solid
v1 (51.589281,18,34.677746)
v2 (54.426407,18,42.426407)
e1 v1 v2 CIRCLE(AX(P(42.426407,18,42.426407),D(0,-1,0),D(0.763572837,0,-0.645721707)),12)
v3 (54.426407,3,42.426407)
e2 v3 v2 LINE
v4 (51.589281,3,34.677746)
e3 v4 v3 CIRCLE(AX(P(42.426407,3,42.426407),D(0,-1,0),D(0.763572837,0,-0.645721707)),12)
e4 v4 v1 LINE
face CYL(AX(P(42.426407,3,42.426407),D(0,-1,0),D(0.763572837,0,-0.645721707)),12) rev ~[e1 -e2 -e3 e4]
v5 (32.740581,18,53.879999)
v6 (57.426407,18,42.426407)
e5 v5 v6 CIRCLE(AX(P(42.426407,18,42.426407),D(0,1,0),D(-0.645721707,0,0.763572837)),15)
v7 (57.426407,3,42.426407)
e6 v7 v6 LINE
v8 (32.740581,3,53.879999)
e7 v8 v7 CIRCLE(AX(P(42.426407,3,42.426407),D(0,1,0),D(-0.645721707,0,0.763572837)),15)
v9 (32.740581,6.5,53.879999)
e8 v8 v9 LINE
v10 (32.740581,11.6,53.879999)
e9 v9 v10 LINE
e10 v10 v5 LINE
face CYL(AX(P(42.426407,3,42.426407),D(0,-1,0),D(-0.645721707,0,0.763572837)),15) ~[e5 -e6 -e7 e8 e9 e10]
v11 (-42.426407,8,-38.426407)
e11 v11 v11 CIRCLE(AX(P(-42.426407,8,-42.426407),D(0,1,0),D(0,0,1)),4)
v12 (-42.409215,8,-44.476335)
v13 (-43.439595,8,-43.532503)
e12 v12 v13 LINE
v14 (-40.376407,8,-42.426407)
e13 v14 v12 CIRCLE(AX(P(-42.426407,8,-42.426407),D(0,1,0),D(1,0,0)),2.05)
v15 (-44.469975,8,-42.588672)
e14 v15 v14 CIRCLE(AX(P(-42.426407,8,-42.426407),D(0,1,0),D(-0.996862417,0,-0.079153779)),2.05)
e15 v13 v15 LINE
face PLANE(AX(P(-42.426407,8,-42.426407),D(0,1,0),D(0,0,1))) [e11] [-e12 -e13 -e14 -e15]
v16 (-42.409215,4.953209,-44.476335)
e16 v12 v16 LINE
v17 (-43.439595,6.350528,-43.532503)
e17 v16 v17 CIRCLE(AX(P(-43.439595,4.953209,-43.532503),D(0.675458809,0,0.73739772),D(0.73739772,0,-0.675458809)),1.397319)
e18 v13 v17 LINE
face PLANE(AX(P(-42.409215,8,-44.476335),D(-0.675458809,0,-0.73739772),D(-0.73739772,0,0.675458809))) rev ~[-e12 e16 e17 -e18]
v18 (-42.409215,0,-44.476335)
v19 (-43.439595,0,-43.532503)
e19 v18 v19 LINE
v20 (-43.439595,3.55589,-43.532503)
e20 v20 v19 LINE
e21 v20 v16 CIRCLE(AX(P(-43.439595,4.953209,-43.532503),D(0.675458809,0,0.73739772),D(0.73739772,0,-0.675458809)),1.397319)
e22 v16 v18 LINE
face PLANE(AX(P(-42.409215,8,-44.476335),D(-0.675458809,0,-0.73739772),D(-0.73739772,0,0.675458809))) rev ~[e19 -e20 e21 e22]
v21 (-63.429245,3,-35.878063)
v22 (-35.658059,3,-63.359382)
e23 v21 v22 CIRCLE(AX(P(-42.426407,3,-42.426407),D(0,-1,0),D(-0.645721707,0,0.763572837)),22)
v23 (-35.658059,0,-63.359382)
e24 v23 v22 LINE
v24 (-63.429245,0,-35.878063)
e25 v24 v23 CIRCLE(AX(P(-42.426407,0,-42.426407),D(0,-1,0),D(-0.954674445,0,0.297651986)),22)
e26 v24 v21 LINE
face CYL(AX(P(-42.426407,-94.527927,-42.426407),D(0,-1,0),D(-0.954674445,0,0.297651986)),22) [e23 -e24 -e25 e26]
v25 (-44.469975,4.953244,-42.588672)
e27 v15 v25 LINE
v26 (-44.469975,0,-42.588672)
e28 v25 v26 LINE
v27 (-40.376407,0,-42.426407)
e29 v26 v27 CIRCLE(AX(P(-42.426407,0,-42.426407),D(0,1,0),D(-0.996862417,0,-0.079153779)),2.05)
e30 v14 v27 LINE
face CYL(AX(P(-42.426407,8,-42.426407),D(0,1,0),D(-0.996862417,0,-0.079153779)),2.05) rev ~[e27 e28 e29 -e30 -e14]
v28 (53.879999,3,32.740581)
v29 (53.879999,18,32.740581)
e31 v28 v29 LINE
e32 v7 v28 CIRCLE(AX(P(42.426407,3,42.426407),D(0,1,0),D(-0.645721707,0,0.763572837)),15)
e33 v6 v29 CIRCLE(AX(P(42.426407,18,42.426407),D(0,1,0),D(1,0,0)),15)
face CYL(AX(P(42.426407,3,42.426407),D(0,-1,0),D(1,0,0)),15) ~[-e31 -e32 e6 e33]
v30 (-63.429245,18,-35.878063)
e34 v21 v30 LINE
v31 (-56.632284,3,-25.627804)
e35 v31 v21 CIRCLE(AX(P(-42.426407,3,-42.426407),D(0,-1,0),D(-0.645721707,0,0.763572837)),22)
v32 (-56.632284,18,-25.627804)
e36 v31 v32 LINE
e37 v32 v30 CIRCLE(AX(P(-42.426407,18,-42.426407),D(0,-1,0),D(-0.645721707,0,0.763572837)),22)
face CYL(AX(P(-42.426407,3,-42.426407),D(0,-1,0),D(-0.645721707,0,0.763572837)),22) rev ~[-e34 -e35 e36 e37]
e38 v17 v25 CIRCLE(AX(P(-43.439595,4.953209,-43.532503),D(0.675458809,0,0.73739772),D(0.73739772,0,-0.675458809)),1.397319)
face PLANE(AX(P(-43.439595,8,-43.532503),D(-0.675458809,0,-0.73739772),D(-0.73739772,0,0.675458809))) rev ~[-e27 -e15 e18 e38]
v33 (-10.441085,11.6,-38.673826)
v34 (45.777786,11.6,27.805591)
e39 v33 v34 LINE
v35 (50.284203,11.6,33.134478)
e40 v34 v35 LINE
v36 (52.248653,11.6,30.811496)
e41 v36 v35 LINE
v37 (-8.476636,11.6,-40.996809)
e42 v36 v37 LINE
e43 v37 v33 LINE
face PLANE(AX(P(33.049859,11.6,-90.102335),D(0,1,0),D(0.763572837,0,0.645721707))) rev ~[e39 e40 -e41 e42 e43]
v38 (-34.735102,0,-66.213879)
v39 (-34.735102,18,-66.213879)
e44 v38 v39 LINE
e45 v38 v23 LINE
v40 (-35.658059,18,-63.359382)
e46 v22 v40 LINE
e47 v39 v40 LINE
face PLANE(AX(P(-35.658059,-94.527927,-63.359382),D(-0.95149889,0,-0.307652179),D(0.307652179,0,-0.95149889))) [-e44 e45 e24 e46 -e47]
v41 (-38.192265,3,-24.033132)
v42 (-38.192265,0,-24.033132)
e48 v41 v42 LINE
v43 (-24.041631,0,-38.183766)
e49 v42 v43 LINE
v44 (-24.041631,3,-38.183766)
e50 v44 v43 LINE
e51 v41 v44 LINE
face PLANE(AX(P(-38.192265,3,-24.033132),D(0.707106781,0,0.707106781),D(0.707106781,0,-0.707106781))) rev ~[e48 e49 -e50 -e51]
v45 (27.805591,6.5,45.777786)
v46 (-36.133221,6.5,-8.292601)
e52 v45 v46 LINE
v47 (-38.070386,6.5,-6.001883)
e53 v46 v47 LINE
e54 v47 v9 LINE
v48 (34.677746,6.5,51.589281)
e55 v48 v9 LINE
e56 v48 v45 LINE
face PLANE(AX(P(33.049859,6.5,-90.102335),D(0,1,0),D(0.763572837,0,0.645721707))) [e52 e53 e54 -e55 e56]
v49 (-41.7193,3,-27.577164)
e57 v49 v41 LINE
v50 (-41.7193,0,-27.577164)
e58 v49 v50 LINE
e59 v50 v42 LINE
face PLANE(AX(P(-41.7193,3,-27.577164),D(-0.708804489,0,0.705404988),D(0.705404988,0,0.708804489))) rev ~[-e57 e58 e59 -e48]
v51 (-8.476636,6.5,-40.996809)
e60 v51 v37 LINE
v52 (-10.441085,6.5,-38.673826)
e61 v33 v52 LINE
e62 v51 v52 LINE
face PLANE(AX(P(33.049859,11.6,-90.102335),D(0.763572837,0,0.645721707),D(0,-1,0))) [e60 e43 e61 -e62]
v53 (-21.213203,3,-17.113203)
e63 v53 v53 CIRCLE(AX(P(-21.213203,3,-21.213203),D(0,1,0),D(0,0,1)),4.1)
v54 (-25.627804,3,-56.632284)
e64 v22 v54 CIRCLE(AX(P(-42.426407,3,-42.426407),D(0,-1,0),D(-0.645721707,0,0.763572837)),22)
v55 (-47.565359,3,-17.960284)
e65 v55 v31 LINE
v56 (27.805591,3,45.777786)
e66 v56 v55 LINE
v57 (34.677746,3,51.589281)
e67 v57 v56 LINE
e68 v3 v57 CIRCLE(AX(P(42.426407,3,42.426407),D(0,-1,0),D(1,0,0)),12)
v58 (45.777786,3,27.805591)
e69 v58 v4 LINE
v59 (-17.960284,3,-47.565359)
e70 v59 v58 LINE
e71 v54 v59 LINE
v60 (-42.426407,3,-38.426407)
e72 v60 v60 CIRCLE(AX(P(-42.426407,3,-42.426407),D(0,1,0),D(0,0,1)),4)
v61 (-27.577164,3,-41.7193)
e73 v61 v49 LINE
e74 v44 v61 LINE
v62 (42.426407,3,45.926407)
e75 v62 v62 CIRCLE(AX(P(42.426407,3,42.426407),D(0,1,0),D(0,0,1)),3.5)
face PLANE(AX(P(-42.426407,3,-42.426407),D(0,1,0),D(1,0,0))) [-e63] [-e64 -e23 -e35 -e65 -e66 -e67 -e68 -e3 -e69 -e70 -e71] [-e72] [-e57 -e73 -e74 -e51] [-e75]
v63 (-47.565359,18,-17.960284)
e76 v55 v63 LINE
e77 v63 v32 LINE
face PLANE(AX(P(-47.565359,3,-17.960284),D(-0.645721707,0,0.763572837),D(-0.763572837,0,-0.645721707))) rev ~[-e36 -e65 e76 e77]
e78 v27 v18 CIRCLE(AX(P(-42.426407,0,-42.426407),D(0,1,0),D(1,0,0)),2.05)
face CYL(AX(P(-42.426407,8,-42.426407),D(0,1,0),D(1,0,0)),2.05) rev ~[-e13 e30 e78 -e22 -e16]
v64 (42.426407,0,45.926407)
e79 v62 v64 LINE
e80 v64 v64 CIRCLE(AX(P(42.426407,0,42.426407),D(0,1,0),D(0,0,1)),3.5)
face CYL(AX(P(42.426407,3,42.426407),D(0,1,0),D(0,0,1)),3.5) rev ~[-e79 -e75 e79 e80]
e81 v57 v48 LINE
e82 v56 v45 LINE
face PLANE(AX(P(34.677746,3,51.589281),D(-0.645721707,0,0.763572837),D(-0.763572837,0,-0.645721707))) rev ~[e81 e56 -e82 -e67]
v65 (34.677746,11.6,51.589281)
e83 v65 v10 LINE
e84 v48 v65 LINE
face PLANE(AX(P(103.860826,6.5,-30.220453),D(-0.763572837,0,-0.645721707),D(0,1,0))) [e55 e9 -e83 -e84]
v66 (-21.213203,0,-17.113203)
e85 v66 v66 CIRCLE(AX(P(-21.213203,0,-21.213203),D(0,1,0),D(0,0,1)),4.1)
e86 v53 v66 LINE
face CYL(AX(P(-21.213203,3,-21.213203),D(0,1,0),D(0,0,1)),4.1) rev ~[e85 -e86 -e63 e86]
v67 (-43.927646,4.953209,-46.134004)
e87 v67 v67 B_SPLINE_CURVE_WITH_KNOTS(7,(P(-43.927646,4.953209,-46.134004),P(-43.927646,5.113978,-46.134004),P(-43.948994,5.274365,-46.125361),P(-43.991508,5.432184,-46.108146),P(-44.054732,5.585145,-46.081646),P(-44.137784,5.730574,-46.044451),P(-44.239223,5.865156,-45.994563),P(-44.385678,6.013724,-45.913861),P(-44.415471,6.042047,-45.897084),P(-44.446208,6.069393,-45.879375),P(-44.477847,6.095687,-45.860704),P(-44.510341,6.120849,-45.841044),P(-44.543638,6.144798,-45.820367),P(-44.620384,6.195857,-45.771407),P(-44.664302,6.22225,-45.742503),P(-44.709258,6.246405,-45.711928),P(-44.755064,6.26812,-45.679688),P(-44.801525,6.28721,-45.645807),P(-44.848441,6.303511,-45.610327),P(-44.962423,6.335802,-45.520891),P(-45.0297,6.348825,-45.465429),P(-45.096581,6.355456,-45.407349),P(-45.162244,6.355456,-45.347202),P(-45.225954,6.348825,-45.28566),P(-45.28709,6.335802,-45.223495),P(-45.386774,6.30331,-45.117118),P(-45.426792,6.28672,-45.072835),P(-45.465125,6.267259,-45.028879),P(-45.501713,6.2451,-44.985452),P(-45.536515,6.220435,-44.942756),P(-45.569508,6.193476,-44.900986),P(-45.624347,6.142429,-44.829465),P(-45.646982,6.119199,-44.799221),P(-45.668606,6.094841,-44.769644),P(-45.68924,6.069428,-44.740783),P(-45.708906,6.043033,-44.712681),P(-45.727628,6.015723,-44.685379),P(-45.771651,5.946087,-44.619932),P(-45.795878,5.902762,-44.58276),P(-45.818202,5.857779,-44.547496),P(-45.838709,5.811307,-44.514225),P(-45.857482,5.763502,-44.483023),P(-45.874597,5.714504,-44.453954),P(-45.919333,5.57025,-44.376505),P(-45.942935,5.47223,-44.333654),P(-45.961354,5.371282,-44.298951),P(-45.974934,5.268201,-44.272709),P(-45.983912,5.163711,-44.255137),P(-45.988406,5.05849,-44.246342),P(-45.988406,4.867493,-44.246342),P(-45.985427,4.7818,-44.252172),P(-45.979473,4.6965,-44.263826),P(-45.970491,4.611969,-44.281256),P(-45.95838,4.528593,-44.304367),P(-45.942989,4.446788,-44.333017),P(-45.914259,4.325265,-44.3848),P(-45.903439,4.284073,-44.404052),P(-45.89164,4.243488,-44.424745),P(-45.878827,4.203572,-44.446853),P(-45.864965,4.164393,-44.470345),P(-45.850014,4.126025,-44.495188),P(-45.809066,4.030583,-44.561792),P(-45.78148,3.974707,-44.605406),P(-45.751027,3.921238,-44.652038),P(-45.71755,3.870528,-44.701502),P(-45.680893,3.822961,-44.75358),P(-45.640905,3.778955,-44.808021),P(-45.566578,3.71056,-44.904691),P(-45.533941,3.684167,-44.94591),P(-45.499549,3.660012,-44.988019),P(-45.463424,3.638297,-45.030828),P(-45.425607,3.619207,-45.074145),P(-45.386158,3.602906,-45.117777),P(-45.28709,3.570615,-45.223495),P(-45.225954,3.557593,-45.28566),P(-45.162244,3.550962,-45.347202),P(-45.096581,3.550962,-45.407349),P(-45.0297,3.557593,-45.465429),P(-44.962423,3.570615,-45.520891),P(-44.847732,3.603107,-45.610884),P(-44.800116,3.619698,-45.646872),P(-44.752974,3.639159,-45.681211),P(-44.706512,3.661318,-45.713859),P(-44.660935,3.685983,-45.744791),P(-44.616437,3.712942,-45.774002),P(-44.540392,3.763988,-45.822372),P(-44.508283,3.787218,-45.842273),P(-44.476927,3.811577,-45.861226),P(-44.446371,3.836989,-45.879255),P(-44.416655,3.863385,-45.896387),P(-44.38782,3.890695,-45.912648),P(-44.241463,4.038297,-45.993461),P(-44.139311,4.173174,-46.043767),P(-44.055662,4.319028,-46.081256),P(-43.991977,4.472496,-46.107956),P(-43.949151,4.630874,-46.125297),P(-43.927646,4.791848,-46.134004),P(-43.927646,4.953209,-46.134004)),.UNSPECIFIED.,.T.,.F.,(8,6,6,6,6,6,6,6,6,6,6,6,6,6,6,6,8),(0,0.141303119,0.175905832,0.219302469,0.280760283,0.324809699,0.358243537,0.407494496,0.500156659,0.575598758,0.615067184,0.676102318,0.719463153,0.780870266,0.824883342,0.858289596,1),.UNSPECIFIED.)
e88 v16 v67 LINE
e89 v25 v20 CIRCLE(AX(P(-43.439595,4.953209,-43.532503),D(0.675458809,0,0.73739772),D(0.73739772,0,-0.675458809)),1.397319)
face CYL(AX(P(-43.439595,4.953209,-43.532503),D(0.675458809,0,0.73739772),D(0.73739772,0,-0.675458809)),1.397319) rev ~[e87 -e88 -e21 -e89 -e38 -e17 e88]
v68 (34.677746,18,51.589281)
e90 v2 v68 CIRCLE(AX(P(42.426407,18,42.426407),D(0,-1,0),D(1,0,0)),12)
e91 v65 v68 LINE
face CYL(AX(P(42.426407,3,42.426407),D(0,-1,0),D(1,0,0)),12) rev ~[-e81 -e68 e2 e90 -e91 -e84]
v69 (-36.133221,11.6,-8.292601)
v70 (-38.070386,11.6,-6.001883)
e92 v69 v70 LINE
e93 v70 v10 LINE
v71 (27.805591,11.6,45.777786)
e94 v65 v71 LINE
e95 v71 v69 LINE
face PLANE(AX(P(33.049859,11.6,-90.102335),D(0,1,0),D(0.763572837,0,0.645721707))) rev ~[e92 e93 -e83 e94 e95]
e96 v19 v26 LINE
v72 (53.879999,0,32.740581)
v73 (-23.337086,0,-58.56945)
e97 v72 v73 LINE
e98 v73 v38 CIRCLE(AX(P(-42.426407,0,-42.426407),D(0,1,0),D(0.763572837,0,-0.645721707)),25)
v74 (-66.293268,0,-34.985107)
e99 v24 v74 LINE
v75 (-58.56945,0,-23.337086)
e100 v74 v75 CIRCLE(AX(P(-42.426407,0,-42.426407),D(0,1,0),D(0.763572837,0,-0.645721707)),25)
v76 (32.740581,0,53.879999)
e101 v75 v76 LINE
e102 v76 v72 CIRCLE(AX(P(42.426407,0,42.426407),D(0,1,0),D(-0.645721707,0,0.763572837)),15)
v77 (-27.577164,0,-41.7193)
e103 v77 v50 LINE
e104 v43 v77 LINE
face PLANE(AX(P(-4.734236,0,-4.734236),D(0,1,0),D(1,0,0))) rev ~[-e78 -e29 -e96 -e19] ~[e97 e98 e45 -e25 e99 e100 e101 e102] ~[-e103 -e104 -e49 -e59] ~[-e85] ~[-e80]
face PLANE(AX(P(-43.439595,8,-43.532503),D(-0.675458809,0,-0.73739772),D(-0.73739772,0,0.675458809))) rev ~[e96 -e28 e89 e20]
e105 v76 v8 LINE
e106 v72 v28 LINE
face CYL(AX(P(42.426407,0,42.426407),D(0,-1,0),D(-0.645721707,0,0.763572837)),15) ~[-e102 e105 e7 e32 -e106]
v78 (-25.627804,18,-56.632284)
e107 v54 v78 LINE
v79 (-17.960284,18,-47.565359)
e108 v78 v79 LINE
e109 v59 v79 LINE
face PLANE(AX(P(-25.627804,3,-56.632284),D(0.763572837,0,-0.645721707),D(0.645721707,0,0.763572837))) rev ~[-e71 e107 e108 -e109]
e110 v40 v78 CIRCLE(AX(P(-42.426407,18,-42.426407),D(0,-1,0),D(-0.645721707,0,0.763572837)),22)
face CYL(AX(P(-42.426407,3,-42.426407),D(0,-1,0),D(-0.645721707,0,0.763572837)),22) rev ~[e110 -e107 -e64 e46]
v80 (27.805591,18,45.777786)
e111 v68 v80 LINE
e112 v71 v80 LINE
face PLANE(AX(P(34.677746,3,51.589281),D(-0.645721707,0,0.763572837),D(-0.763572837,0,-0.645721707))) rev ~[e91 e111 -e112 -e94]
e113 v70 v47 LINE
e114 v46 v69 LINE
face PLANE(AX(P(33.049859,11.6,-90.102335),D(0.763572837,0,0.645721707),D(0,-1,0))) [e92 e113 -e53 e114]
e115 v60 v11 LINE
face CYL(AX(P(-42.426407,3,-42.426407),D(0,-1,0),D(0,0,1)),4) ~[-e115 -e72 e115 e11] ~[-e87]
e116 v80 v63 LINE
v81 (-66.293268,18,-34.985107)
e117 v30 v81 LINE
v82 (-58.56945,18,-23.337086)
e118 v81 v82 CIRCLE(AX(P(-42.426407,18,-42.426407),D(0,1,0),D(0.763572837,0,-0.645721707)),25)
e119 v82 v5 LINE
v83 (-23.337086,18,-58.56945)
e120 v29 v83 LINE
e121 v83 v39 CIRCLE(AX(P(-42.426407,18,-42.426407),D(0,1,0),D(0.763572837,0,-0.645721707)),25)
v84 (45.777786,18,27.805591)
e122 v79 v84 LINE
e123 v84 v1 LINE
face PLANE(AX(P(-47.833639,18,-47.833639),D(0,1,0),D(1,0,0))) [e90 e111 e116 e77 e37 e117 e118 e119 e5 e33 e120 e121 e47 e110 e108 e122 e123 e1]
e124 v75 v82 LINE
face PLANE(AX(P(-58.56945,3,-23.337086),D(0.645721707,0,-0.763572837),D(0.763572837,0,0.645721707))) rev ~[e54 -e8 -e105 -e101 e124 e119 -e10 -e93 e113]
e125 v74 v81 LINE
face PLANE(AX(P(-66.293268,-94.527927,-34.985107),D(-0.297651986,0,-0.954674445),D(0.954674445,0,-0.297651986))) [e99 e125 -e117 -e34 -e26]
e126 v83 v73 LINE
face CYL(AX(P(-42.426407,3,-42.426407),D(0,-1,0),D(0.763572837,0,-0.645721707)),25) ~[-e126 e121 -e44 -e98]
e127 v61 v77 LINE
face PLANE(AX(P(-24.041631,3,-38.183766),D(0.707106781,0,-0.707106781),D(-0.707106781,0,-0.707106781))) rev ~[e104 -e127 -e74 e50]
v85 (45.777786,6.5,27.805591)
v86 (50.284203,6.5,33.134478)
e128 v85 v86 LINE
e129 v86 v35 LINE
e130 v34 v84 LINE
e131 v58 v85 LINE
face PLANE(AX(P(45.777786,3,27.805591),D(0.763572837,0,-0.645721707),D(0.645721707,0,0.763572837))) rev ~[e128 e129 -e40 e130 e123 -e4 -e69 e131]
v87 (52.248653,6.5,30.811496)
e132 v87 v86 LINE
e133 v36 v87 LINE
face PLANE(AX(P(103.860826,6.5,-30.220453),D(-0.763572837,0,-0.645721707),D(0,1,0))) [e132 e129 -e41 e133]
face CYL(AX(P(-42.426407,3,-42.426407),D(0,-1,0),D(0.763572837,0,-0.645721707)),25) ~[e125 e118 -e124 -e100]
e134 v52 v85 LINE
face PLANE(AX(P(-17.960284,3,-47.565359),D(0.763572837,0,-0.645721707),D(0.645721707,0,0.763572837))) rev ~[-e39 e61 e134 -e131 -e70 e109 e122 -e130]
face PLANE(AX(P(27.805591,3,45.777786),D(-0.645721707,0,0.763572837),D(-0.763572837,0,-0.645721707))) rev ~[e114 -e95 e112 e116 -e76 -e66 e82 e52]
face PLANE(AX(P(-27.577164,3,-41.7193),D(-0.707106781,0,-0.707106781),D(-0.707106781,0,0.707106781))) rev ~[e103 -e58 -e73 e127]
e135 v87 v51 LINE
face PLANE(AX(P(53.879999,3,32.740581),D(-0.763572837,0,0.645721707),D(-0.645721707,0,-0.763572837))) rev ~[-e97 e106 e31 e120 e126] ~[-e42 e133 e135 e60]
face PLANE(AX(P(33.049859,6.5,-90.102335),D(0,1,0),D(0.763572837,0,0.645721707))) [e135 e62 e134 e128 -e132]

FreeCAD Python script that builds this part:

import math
import FreeCAD as App
import Part
import Sketcher
Q = App.Units.Quantity

doc = App.newDocument("Part")
params = doc.addObject("Spreadsheet::Sheet", "Params")
for row, (alias, value) in enumerate([
    ("sketch1_radius", "15 mm"),
    ("sketch1_radius2", "25 mm"),
    ("pad1_length", "3 mm"),
    ("sketch2_diameter", "5 mm"),
    ("sketch2_diameter2", "4.5 mm"),
    ("sketch3_diameter", "7 mm"),
    ("sketch4_diameter", "7 mm"),
    ("sketch6_radius", "25 mm"),
    ("sketch6_radius2", "15 mm"),
    ("sketch6_radius3", "22 mm"),
    ("sketch6_length", "9 mm"),
    ("pad2_length", "15 mm"),
    ("pad3_length", "3 mm"),
    ("sketch8_diameter", "8.2 mm"),
    ("pocket5_length", "3 mm"),
    ("sketch9_diameter", "7 mm"),
    ("pad4_length", "3 mm"),
    ("sketch10_diameter", "4.1 mm"),
    ("pad5_length", "5 mm"),
    ("sketch11_diameter", "8 mm"),
    ("sketch11_diameter2", "4.1 mm"),
    ("pad6_length", "5 mm"),
    ("sketch12_radius", "2.05 mm"),
    ("sketch14_radius", "22 mm"),
    ("sketch14_radius2", "25 mm"),
    ("sketch15_height", "5.1 mm"),
    ("sketch16_length", "5 mm"),
    ("sketch16_length2", "20 mm"),
    ("pocket10_length", "5 mm"),
], start=1):
    params.set(f"A{row}", alias)
    params.set(f"B{row}", "=" + value)
    params.setAlias(f"B{row}", alias)

body = doc.addObject("PartDesign::Body", "Body")

sketch1 = body.newObject("Sketcher::SketchObject", "Sketch")
sketch1.AttachmentSupport = (doc.getObject("XZ_Plane"), [""])
sketch1.MapMode = "FlatFace"
sketch1.addGeometry([
    Part.LineSegment(App.Vector(-59, -23, 0), App.Vector(33, 54, 0)),
    Part.ArcOfCircle(Part.Circle(App.Vector(42, 42, 0), App.Vector(0, 0, 1), 15), math.radians(-40), math.radians(130)),
    Part.LineSegment(App.Vector(54, 33, 0), App.Vector(-23, -59, 0)),
    Part.ArcOfCircle(Part.Circle(App.Vector(-42, -42, 0), App.Vector(0, 0, 1), 25), math.radians(130), math.radians(320)),
], False)
sketch1.addConstraint([
    Sketcher.Constraint("Tangent", 0, 2, 1, 2),
    Sketcher.Constraint("Tangent", 1, 1, 2, 1),
    Sketcher.Constraint("Tangent", 2, 2, 3, 2),
    Sketcher.Constraint("Tangent", 3, 1, 0, 1),
    Sketcher.Constraint("Symmetric", 1, 3, 3, 3, -1, 1),
    Sketcher.Constraint("Radius", 1, 15.0),
    Sketcher.Constraint("Radius", 3, 25.0),
    Sketcher.Constraint("DistanceY", -1, 1, 0, 2, 53.879999),
    Sketcher.Constraint("DistanceX", -1, 1, 1, 1, 53.879999),
])
sketch1.setExpression("Constraints[5]", "Params.sketch1_radius")
sketch1.setExpression("Constraints[6]", "Params.sketch1_radius2")
pad1 = body.newObject("PartDesign::Pad", "Pad")
pad1.Profile = sketch1
pad1.setExpression("Length", "Params.pad1_length")
pad1.Reversed = True

sketch2 = body.newObject("Sketcher::SketchObject", "Sketch001")
sketch2.AttachmentSupport = (doc.getObject("XZ_Plane"), [""])
sketch2.MapMode = "FlatFace"
sketch2.AttachmentOffset = App.Placement(App.Vector(0, 0, -3), App.Rotation())
sketch2.addGeometry([
    Part.Circle(App.Vector(-42.4, -42.4, 0), App.Vector(0, 0, 1), 2.2),
    Part.Circle(App.Vector(42.4, 42.4, 0), App.Vector(0, 0, 1), 2.5),
], False)
sketch2.addConstraint([
    Sketcher.Constraint("Symmetric", 0, 3, 1, 3, -1, 1),
    Sketcher.Constraint("Diameter", 1, 5.0),
    Sketcher.Constraint("Diameter", 0, 4.5),
    Sketcher.Constraint("DistanceX", 0, 3, -1, 1, 42.426407),
    Sketcher.Constraint("DistanceY", 0, 3, -1, 1, 42.426407),
])
sketch2.setExpression("Constraints[1]", "Params.sketch2_diameter")
sketch2.setExpression("Constraints[2]", "Params.sketch2_diameter2")
pocket1 = body.newObject("PartDesign::Pocket", "Pocket")
pocket1.Profile = sketch2
pocket1.Type = "ThroughAll"
pocket1.Reversed = True

sketch3 = body.newObject("Sketcher::SketchObject", "Sketch002")
sketch3.AttachmentSupport = (doc.getObject("XZ_Plane"), [""])
sketch3.MapMode = "FlatFace"
sketch3.AttachmentOffset = App.Placement(App.Vector(0, 0, -3), App.Rotation())
sketch3.addGeometry(Part.Circle(App.Vector(-42.4, -42.4, 0), App.Vector(0, 0, 1), 3.5), False)
sketch3.addConstraint([
    Sketcher.Constraint("Diameter", 0, 7.0),
    Sketcher.Constraint("DistanceX", 0, 3, -1, 1, 42.426407),
    Sketcher.Constraint("DistanceY", 0, 3, -1, 1, 42.426407),
])
sketch3.setExpression("Constraints[0]", "Params.sketch3_diameter")
pocket2 = body.newObject("PartDesign::Pocket", "Pocket001")
pocket2.Profile = sketch3
pocket2.Type = "ThroughAll"
pocket2.Reversed = True

sketch4 = body.newObject("Sketcher::SketchObject", "Sketch003")
sketch4.AttachmentSupport = (doc.getObject("XZ_Plane"), [""])
sketch4.MapMode = "FlatFace"
sketch4.AttachmentOffset = App.Placement(App.Vector(0, 0, -3), App.Rotation())
sketch4.addGeometry(Part.Circle(App.Vector(42.4, 42.4, 0), App.Vector(0, 0, 1), 3.5), False)
sketch4.addConstraint([
    Sketcher.Constraint("Diameter", 0, 7.0),
    Sketcher.Constraint("DistanceX", -1, 1, 0, 3, 42.426407),
    Sketcher.Constraint("DistanceY", -1, 1, 0, 3, 42.426407),
])
sketch4.setExpression("Constraints[0]", "Params.sketch4_diameter")
pocket3 = body.newObject("PartDesign::Pocket", "Pocket002")
pocket3.Profile = sketch4
pocket3.Type = "ThroughAll"
pocket3.Reversed = True

sketch5 = body.newObject("Sketcher::SketchObject", "Sketch004")
sketch5.AttachmentSupport = (doc.getObject("XZ_Plane"), [""])
sketch5.MapMode = "FlatFace"
sketch5.AttachmentOffset = App.Placement(App.Vector(0, 0, -3), App.Rotation())
sketch5.addGeometry([
    Part.LineSegment(App.Vector(34, 23, 0), App.Vector(-16, -26, 0)),
    Part.LineSegment(App.Vector(-16, -26, 0), App.Vector(-27, -13, 0)),
    Part.LineSegment(App.Vector(-27, -13, 0), App.Vector(25, 32, 0)),
    Part.LineSegment(App.Vector(25, 32, 0), App.Vector(34, 23, 0)),
], False)
sketch5.addConstraint([
    Sketcher.Constraint("Coincident", 0, 2, 1, 1),
    Sketcher.Constraint("Coincident", 1, 2, 2, 1),
    Sketcher.Constraint("Coincident", 2, 2, 3, 1),
    Sketcher.Constraint("Coincident", 3, 2, 0, 1),
    Sketcher.Constraint("Perpendicular", 1, 2),
    Sketcher.Constraint("Perpendicular", 2, 3),
    Sketcher.Constraint("DistanceX", 0, 2, -1, 1, 15.703),
    Sketcher.Constraint("Distance", 0, 69.133018),
    Sketcher.Constraint("Distance", 1, 17.06841),
    Sketcher.Constraint("DistanceY", -1, 1, 3, 2, 22.56471),
    Sketcher.Constraint("DistanceY", 0, 2, 1, 2, 12.889911),
    Sketcher.Constraint("DistanceY", 1, 2, 2, 2, 45.231632),
])
pocket4 = body.newObject("PartDesign::Pocket", "Pocket003")
pocket4.Profile = sketch5
pocket4.Type = "ThroughAll"
pocket4.Reversed = True

sketch6 = body.newObject("Sketcher::SketchObject", "Sketch005")
sketch6.AttachmentSupport = (doc.getObject("XZ_Plane"), [""])
sketch6.MapMode = "FlatFace"
sketch6.AttachmentOffset = App.Placement(App.Vector(0, 0, -3), App.Rotation())
sketch6.addGeometry([
    Part.ArcOfCircle(Part.Circle(App.Vector(-42, -42, 0), App.Vector(0, 0, 1), 25), math.radians(130), math.radians(320)),
    Part.LineSegment(App.Vector(-59, -23, 0), App.Vector(33, 54, 0)),
    Part.ArcOfCircle(Part.Circle(App.Vector(42, 42, 0), App.Vector(0, 0, 1), 15), math.radians(0), math.radians(130)),
    Part.ArcOfCircle(Part.Circle(App.Vector(42, 42, 0), App.Vector(0, 0, 1), 15), math.radians(-40), math.radians(0)),
    Part.LineSegment(App.Vector(54, 33, 0), App.Vector(-23, -59, 0)),
    Part.LineSegment(App.Vector(28, 46, 0), App.Vector(-48, -18, 0)),
    Part.LineSegment(App.Vector(-48, -18, 0), App.Vector(-57, -26, 0)),
    Part.ArcOfCircle(Part.Circle(App.Vector(-42, -42, 0), App.Vector(0, 0, 1), 22), math.radians(130), math.radians(320)),
    Part.LineSegment(App.Vector(-26, -57, 0), App.Vector(-18, -48, 0)),
    Part.LineSegment(App.Vector(-18, -48, 0), App.Vector(46, 28, 0)),
    Part.LineSegment(App.Vector(46, 28, 0), App.Vector(52, 35, 0)),
    Part.ArcOfCircle(Part.Circle(App.Vector(42, 42, 0), App.Vector(0, 0, 1), 12), math.radians(-40), math.radians(0)),
    Part.ArcOfCircle(Part.Circle(App.Vector(42, 42, 0), App.Vector(0, 0, 1), 12), math.radians(0), math.radians(130)),
    Part.LineSegment(App.Vector(35, 52, 0), App.Vector(28, 46, 0)),
], False)
sketch6.addConstraint([
    Sketcher.Constraint("Tangent", 0, 1, 1, 1),
    Sketcher.Constraint("Tangent", 1, 2, 2, 2),
    Sketcher.Constraint("Tangent", 2, 1, 3, 2),
    Sketcher.Constraint("Tangent", 3, 1, 4, 1),
    Sketcher.Constraint("Tangent", 4, 2, 0, 2),
    Sketcher.Constraint("Coincident", 5, 2, 6, 1),
    Sketcher.Constraint("Tangent", 6, 2, 7, 1),
    Sketcher.Constraint("Tangent", 7, 2, 8, 1),
    Sketcher.Constraint("Coincident", 8, 2, 9, 1),
    Sketcher.Constraint("Coincident", 9, 2, 10, 1),
    Sketcher.Constraint("Tangent", 10, 2, 11, 1),
    Sketcher.Constraint("Tangent", 11, 2, 12, 1),
    Sketcher.Constraint("Tangent", 12, 2, 13, 1),
    Sketcher.Constraint("Coincident", 13, 2, 5, 1),
    Sketcher.Constraint("Coincident", 7, 3, 0, 3),
    Sketcher.Constraint("Coincident", 11, 3, 2, 3),
    Sketcher.Constraint("Equal", 2, 3),
    Sketcher.Constraint("Equal", 11, 12),
    Sketcher.Constraint("Symmetric", 0, 3, 2, 3, -1, 1),
    Sketcher.Constraint("Parallel", 1, 5),
    Sketcher.Constraint("Parallel", 5, 6),
    Sketcher.Constraint("Parallel", 4, 8),
    Sketcher.Constraint("Parallel", 8, 9),
    Sketcher.Constraint("Parallel", 9, 10),
    Sketcher.Constraint("Horizontal", 12, 3, 2, 1),
    Sketcher.Constraint("Horizontal", 2, 1, 11, 2),
    Sketcher.Constraint("Equal", 6, 8),
    Sketcher.Constraint("Equal", 5, 9),
    Sketcher.Constraint("Radius", 0, 25.0),
    Sketcher.Constraint("Radius", 2, 15.0),
    Sketcher.Constraint("Radius", 7, 22.0),
    Sketcher.Constraint("Distance", 10, 9.0),
    Sketcher.Constraint("DistanceY", -1, 1, 1, 2, 53.879999),
    Sketcher.Constraint("DistanceX", -1, 1, 3, 1, 53.879999),
    Sketcher.Constraint("DistanceY", 7, 2, 5, 2, 38.672),
])
sketch6.setExpression("Constraints[28]", "Params.sketch6_radius")
sketch6.setExpression("Constraints[29]", "Params.sketch6_radius2")
sketch6.setExpression("Constraints[30]", "Params.sketch6_radius3")
sketch6.setExpression("Constraints[31]", "Params.sketch6_length")
pad2 = body.newObject("PartDesign::Pad", "Pad001")
pad2.Profile = sketch6
pad2.setExpression("Length", "Params.pad2_length")
pad2.Reversed = True

sketch7 = body.newObject("Sketcher::SketchObject", "Sketch006")
sketch7.AttachmentSupport = (doc.getObject("XZ_Plane"), [""])
sketch7.MapMode = "FlatFace"
sketch7.AttachmentOffset = App.Placement(App.Vector(0, 0, -3), App.Rotation())
sketch7.addGeometry([
    Part.LineSegment(App.Vector(-20.4, -20.4, 0), App.Vector(-26.9, -13, 0)),
    Part.LineSegment(App.Vector(-26.9, -13, 0), App.Vector(25.2, 32.3, 0)),
    Part.LineSegment(App.Vector(25.2, 32.3, 0), App.Vector(28.5, 28.5, 0)),
    Part.LineSegment(App.Vector(28.5, 28.5, 0), App.Vector(33.6, 22.6, 0)),
    Part.LineSegment(App.Vector(33.6, 22.6, 0), App.Vector(-15.7, -25.9, 0)),
    Part.LineSegment(App.Vector(-15.7, -25.9, 0), App.Vector(-20.4, -20.4, 0)),
], False)
sketch7.addConstraint([
    Sketcher.Constraint("Coincident", 0, 2, 1, 1),
    Sketcher.Constraint("Coincident", 1, 2, 2, 1),
    Sketcher.Constraint("Coincident", 2, 2, 3, 1),
    Sketcher.Constraint("Coincident", 3, 2, 4, 1),
    Sketcher.Constraint("Coincident", 4, 2, 5, 1),
    Sketcher.Constraint("Coincident", 5, 2, 0, 1),
    Sketcher.Constraint("Perpendicular", 0, 1),
    Sketcher.Constraint("Perpendicular", 1, 2),
    Sketcher.Constraint("Parallel", 2, 3),
    Sketcher.Constraint("Parallel", 3, 5),
    Sketcher.Constraint("DistanceX", 4, 2, -1, 1, 15.703),
    Sketcher.Constraint("Distance", 0, 9.861061),
    Sketcher.Constraint("Distance", 4, 69.133018),
    Sketcher.Constraint("Distance", 5, 7.207349),
    Sketcher.Constraint("DistanceY", -1, 1, 3, 2, 22.56471),
    Sketcher.Constraint("DistanceX", 5, 2, -1, 1, 20.427451),
    Sketcher.Constraint("DistanceY", 5, 2, -1, 1, 20.427451),
    Sketcher.Constraint("DistanceY", 2, 2, 1, 2, 3.76463),
])
pad3 = body.newObject("PartDesign::Pad", "Pad002")
pad3.Profile = sketch7
pad3.setExpression("Length", "Params.pad3_length")

sketch8 = body.newObject("Sketcher::SketchObject", "Sketch007")
sketch8.AttachmentSupport = (doc.getObject("XZ_Plane"), [""])
sketch8.MapMode = "FlatFace"
sketch8.AttachmentOffset = App.Placement(App.Vector(0, 0, -3), App.Rotation())
sketch8.addGeometry(Part.Circle(App.Vector(-21.2, -21.2, 0), App.Vector(0, 0, 1), 4.1), False)
sketch8.addConstraint([
    Sketcher.Constraint("Diameter", 0, 8.2),
    Sketcher.Constraint("DistanceX", 0, 3, -1, 1, 21.213203),
    Sketcher.Constraint("DistanceY", 0, 3, -1, 1, 21.213203),
])
sketch8.setExpression("Constraints[0]", "Params.sketch8_diameter")
pocket5 = body.newObject("PartDesign::Pocket", "Pocket004")
pocket5.Profile = sketch8
pocket5.setExpression("Length", "Params.pocket5_length")
pocket5.Reversed = True

sketch9 = body.newObject("Sketcher::SketchObject", "Sketch008")
sketch9.AttachmentSupport = (doc.getObject("XZ_Plane"), [""])
sketch9.MapMode = "FlatFace"
sketch9.AttachmentOffset = App.Placement(App.Vector(0, 0, -3), App.Rotation())
sketch9.addGeometry(Part.Circle(App.Vector(-42.4, -42.4, 0), App.Vector(0, 0, 1), 3.5), False)
sketch9.addConstraint([
    Sketcher.Constraint("Diameter", 0, 7.0),
    Sketcher.Constraint("DistanceX", 0, 3, -1, 1, 42.426407),
    Sketcher.Constraint("DistanceY", 0, 3, -1, 1, 42.426407),
])
sketch9.setExpression("Constraints[0]", "Params.sketch9_diameter")
pad4 = body.newObject("PartDesign::Pad", "Pad003")
pad4.Profile = sketch9
pad4.setExpression("Length", "Params.pad4_length")

sketch10 = body.newObject("Sketcher::SketchObject", "Sketch009")
sketch10.AttachmentSupport = (doc.getObject("XZ_Plane"), [""])
sketch10.MapMode = "FlatFace"
sketch10.AttachmentOffset = App.Placement(App.Vector(0, 0, -3), App.Rotation())
sketch10.addGeometry(Part.Circle(App.Vector(-42.4, -42.4, 0), App.Vector(0, 0, 1), 2), False)
sketch10.addConstraint([
    Sketcher.Constraint("Diameter", 0, 4.1),
    Sketcher.Constraint("DistanceX", 0, 3, -1, 1, 42.426407),
    Sketcher.Constraint("DistanceY", 0, 3, -1, 1, 42.426407),
])
sketch10.setExpression("Constraints[0]", "Params.sketch10_diameter")
pad5 = body.newObject("PartDesign::Pad", "Pad004")
pad5.Profile = sketch10
pad5.setExpression("Length", "Params.pad5_length")
pad5.Reversed = True

sketch11 = body.newObject("Sketcher::SketchObject", "Sketch010")
sketch11.AttachmentSupport = (doc.getObject("XZ_Plane"), [""])
sketch11.MapMode = "FlatFace"
sketch11.AttachmentOffset = App.Placement(App.Vector(0, 0, -3), App.Rotation())
sketch11.addGeometry([
    Part.Circle(App.Vector(-42.4, -42.4, 0), App.Vector(0, 0, 1), 4),
    Part.Circle(App.Vector(-42.4, -42.4, 0), App.Vector(0, 0, 1), 2),
], False)
sketch11.addConstraint([
    Sketcher.Constraint("Coincident", 1, 3, 0, 3),
    Sketcher.Constraint("Diameter", 0, 8.0),
    Sketcher.Constraint("Diameter", 1, 4.1),
    Sketcher.Constraint("DistanceX", 0, 3, -1, 1, 42.426407),
    Sketcher.Constraint("DistanceY", 0, 3, -1, 1, 42.426407),
])
sketch11.setExpression("Constraints[1]", "Params.sketch11_diameter")
sketch11.setExpression("Constraints[2]", "Params.sketch11_diameter2")
pad6 = body.newObject("PartDesign::Pad", "Pad005")
pad6.Profile = sketch11
pad6.setExpression("Length", "Params.pad6_length")
pad6.Reversed = True

sketch12 = body.newObject("Sketcher::SketchObject", "Sketch011")
sketch12.AttachmentSupport = (doc.getObject("XZ_Plane"), [""])
sketch12.MapMode = "FlatFace"
sketch12.AttachmentOffset = App.Placement(App.Vector(0, 0, -8), App.Rotation())
sketch12.addGeometry([
    Part.LineSegment(App.Vector(-42.4, -44.5, 0), App.Vector(-43.4, -43.5, 0)),
    Part.LineSegment(App.Vector(-43.4, -43.5, 0), App.Vector(-44.5, -42.6, 0)),
    Part.ArcOfCircle(Part.Circle(App.Vector(-42.4, -42.4, 0), App.Vector(0, 0, 1), 2), math.radians(0), math.radians(185)),
    Part.ArcOfCircle(Part.Circle(App.Vector(-42.4, -42.4, 0), App.Vector(0, 0, 1), 2), math.radians(-90), math.radians(0)),
], False)
sketch12.addConstraint([
    Sketcher.Constraint("Coincident", 0, 2, 1, 1),
    Sketcher.Constraint("Coincident", 1, 2, 2, 2),
    Sketcher.Constraint("Tangent", 2, 1, 3, 2),
    Sketcher.Constraint("Coincident", 3, 1, 0, 1),
    Sketcher.Constraint("Equal", 2, 3),
    Sketcher.Constraint("Parallel", 0, 1),
    Sketcher.Constraint("Horizontal", 3, 3, 2, 1),
    Sketcher.Constraint("Equal", 0, 1),
    Sketcher.Constraint("Radius", 2, 2.05),
    Sketcher.Constraint("Distance", 0, 1.397319),
    Sketcher.Constraint("DistanceX", 0, 2, 3, 3, 1.013188),
    Sketcher.Constraint("DistanceX", 2, 3, -1, 1, 42.426407),
    Sketcher.Constraint("DistanceY", 2, 3, -1, 1, 42.426407),
])
sketch12.setExpression("Constraints[8]", "Params.sketch12_radius")
pocket6 = body.newObject("PartDesign::Pocket", "Pocket005")
pocket6.Profile = sketch12
pocket6.Type = "ThroughAll"
pocket6.Reversed = True

sketch13 = body.newObject("Sketcher::SketchObject", "Sketch012")
sketch13.Placement = App.Placement(App.Vector(-41.501828, 0, -45.307505), App.Rotation(App.Vector(0.73739772, 0, -0.675458809), App.Vector(0, 1, 0), App.Vector(0.675458809, 0, 0.73739772), "ZXY"))
sketch13.addGeometry(Part.Circle(App.Vector(-2.6, 5, 0), App.Vector(0, 0, 1), 1.4), False)
sketch13.addConstraint([
    Sketcher.Constraint("Diameter", 0, 2.794638),
    Sketcher.Constraint("DistanceY", -1, 1, 0, 3, 4.953209),
    Sketcher.Constraint("DistanceX", 0, 3, -1, 1, 2.627845),
])
pocket7 = body.newObject("PartDesign::Pocket", "Pocket006")
pocket7.Profile = sketch13
pocket7.Type = "ThroughAll"

sketch14 = body.newObject("Sketcher::SketchObject", "Sketch013")
sketch14.AttachmentSupport = (doc.getObject("XZ_Plane"), [""])
sketch14.MapMode = "FlatFace"
sketch14.AttachmentOffset = App.Placement(App.Vector(0, 0, -3), App.Rotation())
sketch14.addGeometry([
    Part.LineSegment(App.Vector(-66.3, -35, 0), App.Vector(-63.4, -35.9, 0)),
    Part.ArcOfCircle(Part.Circle(App.Vector(-42.4, -42.4, 0), App.Vector(0, 0, 1), 22), math.radians(163), math.radians(288)),
    Part.LineSegment(App.Vector(-35.7, -63.4, 0), App.Vector(-34.7, -66.2, 0)),
    Part.ArcOfCircle(Part.Circle(App.Vector(-42.4, -42.4, 0), App.Vector(0, 0, 1), 25), math.radians(163), math.radians(288)),
], False)
sketch14.addConstraint([
    Sketcher.Constraint("Coincident", 0, 2, 1, 1),
    Sketcher.Constraint("Coincident", 1, 2, 2, 1),
    Sketcher.Constraint("Coincident", 2, 2, 3, 2),
    Sketcher.Constraint("Coincident", 3, 1, 0, 1),
    Sketcher.Constraint("Coincident", 3, 3, 1, 3),
    Sketcher.Constraint("Radius", 1, 22.0),
    Sketcher.Constraint("Radius", 3, 25.0),
    Sketcher.Constraint("DistanceY", 1, 3, 3, 1, 7.4413),
    Sketcher.Constraint("DistanceX", 1, 2, -1, 1, 35.658059),
    Sketcher.Constraint("DistanceY", 2, 2, -1, 1, 66.213879),
    Sketcher.Constraint("DistanceY", 1, 2, 0, 2, 27.481319),
    Sketcher.Constraint("DistanceX", 3, 1, 1, 2, 30.635209),
    Sketcher.Constraint("DistanceY", 2, 2, 3, 1, 31.228772),
])
sketch14.setExpression("Constraints[5]", "Params.sketch14_radius")
sketch14.setExpression("Constraints[6]", "Params.sketch14_radius2")
pocket8 = body.newObject("PartDesign::Pocket", "Pocket007")
pocket8.Profile = sketch14
pocket8.Type = "ThroughAll"
pocket8.Midplane = True

sketch15 = body.newObject("Sketcher::SketchObject", "Sketch014")
sketch15.Placement = App.Placement(App.Vector(-12.914434, 0, 15.271457), App.Rotation(App.Vector(0.763572837, 0, 0.645721707), App.Vector(0, 1, 0), App.Vector(-0.645721707, 0, 0.763572837), "ZXY"))
sketch15.addGeometry([
    Part.LineSegment(App.Vector(-33, 12, 0), App.Vector(-33, 7, 0)),
    Part.LineSegment(App.Vector(-33, 7, 0), App.Vector(60, 7, 0)),
    Part.LineSegment(App.Vector(60, 7, 0), App.Vector(60, 12, 0)),
    Part.LineSegment(App.Vector(60, 12, 0), App.Vector(-33, 12, 0)),
], False)
sketch15.addConstraint([
    Sketcher.Constraint("Coincident", 0, 2, 1, 1),
    Sketcher.Constraint("Coincident", 1, 2, 2, 1),
    Sketcher.Constraint("Coincident", 2, 2, 3, 1),
    Sketcher.Constraint("Coincident", 3, 2, 0, 1),
    Sketcher.Constraint("Vertical", 0),
    Sketcher.Constraint("Horizontal", 1),
    Sketcher.Constraint("Vertical", 2),
    Sketcher.Constraint("Horizontal", 3),
    Sketcher.Constraint("DistanceY", 0, 2, 0, 1, 5.1),
    Sketcher.Constraint("DistanceY", -1, 1, 0, 2, 6.5),
    Sketcher.Constraint("DistanceX", 1, 1, 1, 2, 92.736362),
    Sketcher.Constraint("DistanceX", 0, 2, -1, 1, 32.945058),
])
sketch15.setExpression("Constraints[8]", "Params.sketch15_height")
pocket9 = body.newObject("PartDesign::Pocket", "Pocket008")
pocket9.Profile = sketch15
pocket9.Type = "ThroughAll"
pocket9.Midplane = True

sketch16 = body.newObject("Sketcher::SketchObject", "Sketch015")
sketch16.AttachmentSupport = (doc.getObject("XZ_Plane"), [""])
sketch16.MapMode = "FlatFace"
sketch16.AttachmentOffset = App.Placement(App.Vector(0, 0, -3), App.Rotation())
sketch16.addGeometry([
    Part.LineSegment(App.Vector(-24, -38, 0), App.Vector(-28, -42, 0)),
    Part.LineSegment(App.Vector(-28, -42, 0), App.Vector(-42, -28, 0)),
    Part.LineSegment(App.Vector(-42, -28, 0), App.Vector(-38, -24, 0)),
    Part.LineSegment(App.Vector(-38, -24, 0), App.Vector(-24, -38, 0)),
], False)
sketch16.addConstraint([
    Sketcher.Constraint("Coincident", 0, 2, 1, 1),
    Sketcher.Constraint("Coincident", 1, 2, 2, 1),
    Sketcher.Constraint("Coincident", 2, 2, 3, 1),
    Sketcher.Constraint("Coincident", 3, 2, 0, 1),
    Sketcher.Constraint("Perpendicular", 0, 1),
    Sketcher.Constraint("Parallel", 1, 3),
    Sketcher.Constraint("Angle", 0, Q("-135 deg")),
    Sketcher.Constraint("Distance", 0, 5.0),
    Sketcher.Constraint("Distance", 1, 20.0),
    Sketcher.Constraint("DistanceY", 0, 2, -1, 1, 41.7193),
    Sketcher.Constraint("DistanceX", 1, 2, -1, 1, 41.7193),
    Sketcher.Constraint("DistanceX", 2, 2, 0, 2, 10.6151),
])
sketch16.setExpression("Constraints[7]", "Params.sketch16_length")
sketch16.setExpression("Constraints[8]", "Params.sketch16_length2")
pocket10 = body.newObject("PartDesign::Pocket", "Pocket009")
pocket10.Profile = sketch16
pocket10.setExpression("Length", "Params.pocket10_length")
pocket10.Reversed = True

doc.recompute()
